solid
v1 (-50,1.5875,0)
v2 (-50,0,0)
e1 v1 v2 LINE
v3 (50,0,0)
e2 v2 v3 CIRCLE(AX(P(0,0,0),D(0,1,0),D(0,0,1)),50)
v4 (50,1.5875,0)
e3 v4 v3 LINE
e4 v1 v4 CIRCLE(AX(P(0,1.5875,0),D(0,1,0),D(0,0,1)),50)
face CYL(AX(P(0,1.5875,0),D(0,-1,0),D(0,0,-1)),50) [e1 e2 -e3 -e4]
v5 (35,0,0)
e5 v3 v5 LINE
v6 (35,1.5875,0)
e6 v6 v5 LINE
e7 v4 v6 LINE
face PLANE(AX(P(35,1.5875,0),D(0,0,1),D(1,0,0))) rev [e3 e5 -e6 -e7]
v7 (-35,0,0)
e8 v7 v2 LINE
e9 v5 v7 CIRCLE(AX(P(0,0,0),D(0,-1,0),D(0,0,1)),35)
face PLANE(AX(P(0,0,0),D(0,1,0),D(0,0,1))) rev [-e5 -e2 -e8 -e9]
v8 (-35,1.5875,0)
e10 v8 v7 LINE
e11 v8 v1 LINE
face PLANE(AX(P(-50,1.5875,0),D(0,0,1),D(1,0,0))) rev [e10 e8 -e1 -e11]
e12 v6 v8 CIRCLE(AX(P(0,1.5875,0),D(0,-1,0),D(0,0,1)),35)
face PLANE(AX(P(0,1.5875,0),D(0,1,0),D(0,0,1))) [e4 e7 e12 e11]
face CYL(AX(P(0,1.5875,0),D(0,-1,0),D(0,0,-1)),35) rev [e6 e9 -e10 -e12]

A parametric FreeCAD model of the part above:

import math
import FreeCAD as App
import Part
import Sketcher
Q = App.Units.Quantity

doc = App.newDocument("Part")
body = doc.addObject("PartDesign::Body", "Body")

sketch1 = body.newObject("Sketcher::SketchObject", "Sketch")
sketch1.AttachmentSupport = (doc.getObject("XZ_Plane"), [""])
sketch1.MapMode = "FlatFace"
sketch1.addGeometry([
    Part.LineSegment(App.Vector(-35, 0, 0), App.Vector(-50, 0, 0)),
    Part.ArcOfCircle(Part.Circle(App.Vector(0, 0, 0), App.Vector(0, 0, 1), 50), math.radians(0), math.radians(180)),
    Part.LineSegment(App.Vector(50, 0, 0), App.Vector(35, 0, 0)),
    Part.ArcOfCircle(Part.Circle(App.Vector(0, 0, 0), App.Vector(0, 0, 1), 35), math.radians(0), math.radians(180)),
], False)
sketch1.addConstraint([
    Sketcher.Constraint("Coincident", 0, 2, 1, 2),
    Sketcher.Constraint("Coincident", 1, 1, 2, 1),
    Sketcher.Constraint("Coincident", 2, 2, 3, 1),
    Sketcher.Constraint("Coincident", 3, 2, 0, 1),
    Sketcher.Constraint("Horizontal", 0),
    Sketcher.Constraint("Horizontal", 2),
    Sketcher.Constraint("Coincident", 1, 3, -1, 1),
    Sketcher.Constraint("Coincident", 3, 3, -1, 1),
    Sketcher.Constraint("PointOnObject", 0, 2, -1),
    Sketcher.Constraint("PointOnObject", 1, 1, -1),
    Sketcher.Constraint("Radius", 1, Q("50 mm")),
    Sketcher.Constraint("Radius", 3, Q("35 mm")),
])
pad1 = body.newObject("PartDesign::Pad", "Pad")
pad1.Profile = sketch1
pad1.Length = 1.5875
pad1.Reversed = True

doc.recompute()
